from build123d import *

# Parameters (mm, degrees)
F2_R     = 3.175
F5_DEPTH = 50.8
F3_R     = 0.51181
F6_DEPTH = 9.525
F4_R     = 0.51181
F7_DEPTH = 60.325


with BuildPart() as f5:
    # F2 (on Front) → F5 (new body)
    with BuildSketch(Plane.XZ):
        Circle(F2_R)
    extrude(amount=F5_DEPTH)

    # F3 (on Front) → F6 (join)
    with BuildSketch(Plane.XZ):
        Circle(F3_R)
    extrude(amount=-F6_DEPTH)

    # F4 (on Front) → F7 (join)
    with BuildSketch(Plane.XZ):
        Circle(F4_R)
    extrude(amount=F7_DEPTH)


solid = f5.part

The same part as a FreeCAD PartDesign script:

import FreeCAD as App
import Part
import Sketcher
Q = App.Units.Quantity

doc = App.newDocument("Part")
body = doc.addObject("PartDesign::Body", "Body")

# Sketch on XZ plane
sketch1 = body.newObject("Sketcher::SketchObject", "Sketch")
sketch1.AttachmentSupport = (doc.getObject("XZ_Plane"), [""])
sketch1.MapMode = "FlatFace"
sketch1.addGeometry(Part.Circle(App.Vector(0, 0, 0), App.Vector(0, 0, 1), 3.2), False)
sketch1.addConstraint(Sketcher.Constraint("Coincident", 0, 3, -1, 1))
sketch1.addConstraint(Sketcher.Constraint("Diameter", 0, Q("0.25 in")))
pad1 = body.newObject("PartDesign::Pad", "Pad")
pad1.Profile = sketch1
pad1.Length = Q("2 in")

# Sketch on XZ plane
sketch2 = body.newObject("Sketcher::SketchObject", "Sketch001")
sketch2.AttachmentSupport = (doc.getObject("XZ_Plane"), [""])
sketch2.MapMode = "FlatFace"
sketch2.addGeometry(Part.Circle(App.Vector(0, 0, 0), App.Vector(0, 0, 1), 0.5), False)
sketch2.addConstraint(Sketcher.Constraint("Coincident", 0, 3, -1, 1))
sketch2.addConstraint(Sketcher.Constraint("Diameter", 0, Q("0.0403 in")))
pad2 = body.newObject("PartDesign::Pad", "Pad001")
pad2.Profile = sketch2
pad2.Length = Q("0.375 in")
pad2.Reversed = True

# Sketch on XZ plane
sketch3 = body.newObject("Sketcher::SketchObject", "Sketch002")
sketch3.AttachmentSupport = (doc.getObject("XZ_Plane"), [""])
sketch3.MapMode = "FlatFace"
sketch3.addGeometry(Part.Circle(App.Vector(0, 0, 0), App.Vector(0, 0, 1), 0.5), False)
sketch3.addConstraint(Sketcher.Constraint("Coincident", 0, 3, -1, 1))
sketch3.addConstraint(Sketcher.Constraint("Diameter", 0, Q("0.0403 in")))
pad3 = body.newObject("PartDesign::Pad", "Pad002")
pad3.Profile = sketch3
pad3.Length = Q("2.375 in")

doc.recompute()
